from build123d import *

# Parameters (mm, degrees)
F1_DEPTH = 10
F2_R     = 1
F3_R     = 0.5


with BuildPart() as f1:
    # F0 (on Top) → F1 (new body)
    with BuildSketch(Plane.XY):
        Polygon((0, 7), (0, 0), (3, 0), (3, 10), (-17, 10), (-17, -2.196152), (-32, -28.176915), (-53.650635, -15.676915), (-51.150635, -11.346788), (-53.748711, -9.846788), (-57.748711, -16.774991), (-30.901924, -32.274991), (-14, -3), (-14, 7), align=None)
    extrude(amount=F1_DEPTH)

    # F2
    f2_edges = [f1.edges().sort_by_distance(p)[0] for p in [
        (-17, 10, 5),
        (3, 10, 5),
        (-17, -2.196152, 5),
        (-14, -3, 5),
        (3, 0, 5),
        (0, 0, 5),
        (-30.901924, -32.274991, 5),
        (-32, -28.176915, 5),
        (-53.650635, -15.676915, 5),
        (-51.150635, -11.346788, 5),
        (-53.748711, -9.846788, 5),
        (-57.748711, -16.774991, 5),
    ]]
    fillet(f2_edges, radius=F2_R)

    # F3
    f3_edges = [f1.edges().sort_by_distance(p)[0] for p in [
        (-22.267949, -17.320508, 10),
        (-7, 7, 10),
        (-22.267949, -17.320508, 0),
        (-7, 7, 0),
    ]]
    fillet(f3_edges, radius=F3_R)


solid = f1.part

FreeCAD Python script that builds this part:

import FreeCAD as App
import Part
import Sketcher
from FreeCAD import Vector
Q = App.Units.Quantity


def edges_at(feature, points):
    """Names of the edges that pass closest to the given points."""
    edges = feature.Shape.Edges
    near = lambda p: min(range(len(edges)), key=lambda i: edges[i].distToShape(Part.Vertex(*p))[0])
    return sorted({f"Edge{near(p) + 1}" for p in points})

doc = App.newDocument("Part")
params = doc.addObject("Spreadsheet::Sheet", "Params")
for row, (alias, value) in enumerate([
    ("sketch1_width", "3 mm"),
    ("sketch1_width2", "20 mm"),
    ("sketch1_width3", "14 mm"),
    ("sketch1_height", "7 mm"),
    ("sketch1_height2", "10 mm"),
    ("pad1_length", "10 mm"),
    ("fillet_radius", "1 mm"),
    ("fillet2_radius", "0.5 mm"),
], start=1):
    params.set(f"A{row}", alias)
    params.set(f"B{row}", "=" + value)
    params.setAlias(f"B{row}", alias)

body = doc.addObject("PartDesign::Body", "Body")

# Sketch on XY plane
sketch1 = body.newObject("Sketcher::SketchObject", "Sketch")
sketch1.AttachmentSupport = (doc.getObject("XY_Plane"), [""])
sketch1.MapMode = "FlatFace"
sketch1.addGeometry(Part.LineSegment(Vector(0, 7, 0), Vector(0, 0, 0)), False)
sketch1.addGeometry(Part.LineSegment(Vector(0, 0, 0), Vector(3, 0, 0)), False)
sketch1.addGeometry(Part.LineSegment(Vector(3, 0, 0), Vector(3, 10, 0)), False)
sketch1.addGeometry(Part.LineSegment(Vector(3, 10, 0), Vector(-17, 10, 0)), False)
sketch1.addGeometry(Part.LineSegment(Vector(-17, 10, 0), Vector(-17, -2.196152, 0)), False)
sketch1.addGeometry(Part.LineSegment(Vector(-17, -2.196152, 0), Vector(-32, -28.176915, 0)), False)
sketch1.addGeometry(Part.LineSegment(Vector(-32, -28.176915, 0), Vector(-53.650635, -15.676915, 0)), False)
sketch1.addGeometry(Part.LineSegment(Vector(-53.650635, -15.676915, 0), Vector(-51.150635, -11.346788, 0)), False)
sketch1.addGeometry(Part.LineSegment(Vector(-51.150635, -11.346788, 0), Vector(-53.748711, -9.846788, 0)), False)
sketch1.addGeometry(Part.LineSegment(Vector(-53.748711, -9.846788, 0), Vector(-57.748711, -16.774991, 0)), False)
sketch1.addGeometry(Part.LineSegment(Vector(-57.748711, -16.774991, 0), Vector(-30.901924, -32.274991, 0)), False)
sketch1.addGeometry(Part.LineSegment(Vector(-30.901924, -32.274991, 0), Vector(-14, -3, 0)), False)
sketch1.addGeometry(Part.LineSegment(Vector(-14, -3, 0), Vector(-14, 7, 0)), False)
sketch1.addGeometry(Part.LineSegment(Vector(-14, 7, 0), Vector(0, 7, 0)), False)
sketch1.addConstraint(Sketcher.Constraint("Coincident", 0, 2, 1, 1))
sketch1.addConstraint(Sketcher.Constraint("Coincident", 1, 2, 2, 1))
sketch1.addConstraint(Sketcher.Constraint("Coincident", 2, 2, 3, 1))
sketch1.addConstraint(Sketcher.Constraint("Coincident", 3, 2, 4, 1))
sketch1.addConstraint(Sketcher.Constraint("Coincident", 4, 2, 5, 1))
sketch1.addConstraint(Sketcher.Constraint("Coincident", 5, 2, 6, 1))
sketch1.addConstraint(Sketcher.Constraint("Coincident", 6, 2, 7, 1))
sketch1.addConstraint(Sketcher.Constraint("Coincident", 7, 2, 8, 1))
sketch1.addConstraint(Sketcher.Constraint("Coincident", 8, 2, 9, 1))
sketch1.addConstraint(Sketcher.Constraint("Coincident", 9, 2, 10, 1))
sketch1.addConstraint(Sketcher.Constraint("Coincident", 10, 2, 11, 1))
sketch1.addConstraint(Sketcher.Constraint("Coincident", 11, 2, 12, 1))
sketch1.addConstraint(Sketcher.Constraint("Coincident", 12, 2, 13, 1))
sketch1.addConstraint(Sketcher.Constraint("Coincident", 13, 2, 0, 1))
sketch1.addConstraint(Sketcher.Constraint("Vertical", 0))
sketch1.addConstraint(Sketcher.Constraint("Horizontal", 1))
sketch1.addConstraint(Sketcher.Constraint("Vertical", 2))
sketch1.addConstraint(Sketcher.Constraint("Horizontal", 3))
sketch1.addConstraint(Sketcher.Constraint("Vertical", 4))
sketch1.addConstraint(Sketcher.Constraint("Vertical", 12))
sketch1.addConstraint(Sketcher.Constraint("Horizontal", 13))
sketch1.addConstraint(Sketcher.Constraint("Coincident", 0, 2, -1, 1))
sketch1.addConstraint(Sketcher.Constraint("Perpendicular", 5, 6))
sketch1.addConstraint(Sketcher.Constraint("Perpendicular", 6, 7))
sketch1.addConstraint(Sketcher.Constraint("Perpendicular", 7, 8))
sketch1.addConstraint(Sketcher.Constraint("Perpendicular", 8, 9))
sketch1.addConstraint(Sketcher.Constraint("Perpendicular", 9, 10))
sketch1.addConstraint(Sketcher.Constraint("Perpendicular", 10, 11))
sketch1.addConstraint(Sketcher.Constraint("Equal", 2, 12))
sketch1.addConstraint(Sketcher.Constraint("DistanceX", 1, 1, 1, 2, Q("3 mm")))
sketch1.addConstraint(Sketcher.Constraint("DistanceX", 3, 2, 3, 1, Q("20 mm")))
sketch1.addConstraint(Sketcher.Constraint("DistanceX", 13, 1, 13, 2, Q("14 mm")))
sketch1.addConstraint(Sketcher.Constraint("DistanceY", 0, 2, 0, 1, Q("7 mm")))
sketch1.addConstraint(Sketcher.Constraint("DistanceY", 2, 1, 2, 2, Q("10 mm")))
sketch1.addConstraint(Sketcher.Constraint("Angle", 5, Q("-119.999999 deg")))
sketch1.addConstraint(Sketcher.Constraint("Distance", 5, Q("30.000001 mm")))
sketch1.addConstraint(Sketcher.Constraint("Distance", 6, Q("25 mm")))
sketch1.addConstraint(Sketcher.Constraint("Distance", 7, Q("5 mm")))
sketch1.addConstraint(Sketcher.Constraint("Distance", 8, Q("3 mm")))
sketch1.addConstraint(Sketcher.Constraint("Distance", 9, Q("8 mm")))
sketch1.addConstraint(Sketcher.Constraint("Distance", 10, Q("31 mm")))
sketch1.setExpression("Constraints[29]", "Params.sketch1_width")
sketch1.setExpression("Constraints[30]", "Params.sketch1_width2")
sketch1.setExpression("Constraints[31]", "Params.sketch1_width3")
sketch1.setExpression("Constraints[32]", "Params.sketch1_height")
sketch1.setExpression("Constraints[33]", "Params.sketch1_height2")
pad1 = body.newObject("PartDesign::Pad", "Pad")
pad1.Profile = sketch1
pad1.setExpression("Length", "Params.pad1_length")
doc.recompute()

fillet = body.newObject("PartDesign::Fillet", "Fillet")
fillet.Base = (pad1, edges_at(pad1, [
    (-17, 10, 5),
    (3, 10, 5),
    (-17, -2.196, 5),
    (-14, -3, 5),
    (3, 0, 5),
    (0, 0, 5),
    (-30.902, -32.275, 5),
    (-32, -28.177, 5),
    (-53.651, -15.677, 5),
    (-51.151, -11.347, 5),
    (-53.749, -9.847, 5),
    (-57.749, -16.775, 5),
]))
fillet.setExpression("Radius", "Params.fillet_radius")
doc.recompute()

fillet2 = body.newObject("PartDesign::Fillet", "Fillet001")
fillet2.Base = (fillet, edges_at(fillet, [
    (-22.268, -17.321, 10),
    (-7, 7, 10),
    (-22.268, -17.321, 0),
    (-7, 7, 0),
]))
fillet2.setExpression("Radius", "Params.fillet2_radius")

doc.recompute()
